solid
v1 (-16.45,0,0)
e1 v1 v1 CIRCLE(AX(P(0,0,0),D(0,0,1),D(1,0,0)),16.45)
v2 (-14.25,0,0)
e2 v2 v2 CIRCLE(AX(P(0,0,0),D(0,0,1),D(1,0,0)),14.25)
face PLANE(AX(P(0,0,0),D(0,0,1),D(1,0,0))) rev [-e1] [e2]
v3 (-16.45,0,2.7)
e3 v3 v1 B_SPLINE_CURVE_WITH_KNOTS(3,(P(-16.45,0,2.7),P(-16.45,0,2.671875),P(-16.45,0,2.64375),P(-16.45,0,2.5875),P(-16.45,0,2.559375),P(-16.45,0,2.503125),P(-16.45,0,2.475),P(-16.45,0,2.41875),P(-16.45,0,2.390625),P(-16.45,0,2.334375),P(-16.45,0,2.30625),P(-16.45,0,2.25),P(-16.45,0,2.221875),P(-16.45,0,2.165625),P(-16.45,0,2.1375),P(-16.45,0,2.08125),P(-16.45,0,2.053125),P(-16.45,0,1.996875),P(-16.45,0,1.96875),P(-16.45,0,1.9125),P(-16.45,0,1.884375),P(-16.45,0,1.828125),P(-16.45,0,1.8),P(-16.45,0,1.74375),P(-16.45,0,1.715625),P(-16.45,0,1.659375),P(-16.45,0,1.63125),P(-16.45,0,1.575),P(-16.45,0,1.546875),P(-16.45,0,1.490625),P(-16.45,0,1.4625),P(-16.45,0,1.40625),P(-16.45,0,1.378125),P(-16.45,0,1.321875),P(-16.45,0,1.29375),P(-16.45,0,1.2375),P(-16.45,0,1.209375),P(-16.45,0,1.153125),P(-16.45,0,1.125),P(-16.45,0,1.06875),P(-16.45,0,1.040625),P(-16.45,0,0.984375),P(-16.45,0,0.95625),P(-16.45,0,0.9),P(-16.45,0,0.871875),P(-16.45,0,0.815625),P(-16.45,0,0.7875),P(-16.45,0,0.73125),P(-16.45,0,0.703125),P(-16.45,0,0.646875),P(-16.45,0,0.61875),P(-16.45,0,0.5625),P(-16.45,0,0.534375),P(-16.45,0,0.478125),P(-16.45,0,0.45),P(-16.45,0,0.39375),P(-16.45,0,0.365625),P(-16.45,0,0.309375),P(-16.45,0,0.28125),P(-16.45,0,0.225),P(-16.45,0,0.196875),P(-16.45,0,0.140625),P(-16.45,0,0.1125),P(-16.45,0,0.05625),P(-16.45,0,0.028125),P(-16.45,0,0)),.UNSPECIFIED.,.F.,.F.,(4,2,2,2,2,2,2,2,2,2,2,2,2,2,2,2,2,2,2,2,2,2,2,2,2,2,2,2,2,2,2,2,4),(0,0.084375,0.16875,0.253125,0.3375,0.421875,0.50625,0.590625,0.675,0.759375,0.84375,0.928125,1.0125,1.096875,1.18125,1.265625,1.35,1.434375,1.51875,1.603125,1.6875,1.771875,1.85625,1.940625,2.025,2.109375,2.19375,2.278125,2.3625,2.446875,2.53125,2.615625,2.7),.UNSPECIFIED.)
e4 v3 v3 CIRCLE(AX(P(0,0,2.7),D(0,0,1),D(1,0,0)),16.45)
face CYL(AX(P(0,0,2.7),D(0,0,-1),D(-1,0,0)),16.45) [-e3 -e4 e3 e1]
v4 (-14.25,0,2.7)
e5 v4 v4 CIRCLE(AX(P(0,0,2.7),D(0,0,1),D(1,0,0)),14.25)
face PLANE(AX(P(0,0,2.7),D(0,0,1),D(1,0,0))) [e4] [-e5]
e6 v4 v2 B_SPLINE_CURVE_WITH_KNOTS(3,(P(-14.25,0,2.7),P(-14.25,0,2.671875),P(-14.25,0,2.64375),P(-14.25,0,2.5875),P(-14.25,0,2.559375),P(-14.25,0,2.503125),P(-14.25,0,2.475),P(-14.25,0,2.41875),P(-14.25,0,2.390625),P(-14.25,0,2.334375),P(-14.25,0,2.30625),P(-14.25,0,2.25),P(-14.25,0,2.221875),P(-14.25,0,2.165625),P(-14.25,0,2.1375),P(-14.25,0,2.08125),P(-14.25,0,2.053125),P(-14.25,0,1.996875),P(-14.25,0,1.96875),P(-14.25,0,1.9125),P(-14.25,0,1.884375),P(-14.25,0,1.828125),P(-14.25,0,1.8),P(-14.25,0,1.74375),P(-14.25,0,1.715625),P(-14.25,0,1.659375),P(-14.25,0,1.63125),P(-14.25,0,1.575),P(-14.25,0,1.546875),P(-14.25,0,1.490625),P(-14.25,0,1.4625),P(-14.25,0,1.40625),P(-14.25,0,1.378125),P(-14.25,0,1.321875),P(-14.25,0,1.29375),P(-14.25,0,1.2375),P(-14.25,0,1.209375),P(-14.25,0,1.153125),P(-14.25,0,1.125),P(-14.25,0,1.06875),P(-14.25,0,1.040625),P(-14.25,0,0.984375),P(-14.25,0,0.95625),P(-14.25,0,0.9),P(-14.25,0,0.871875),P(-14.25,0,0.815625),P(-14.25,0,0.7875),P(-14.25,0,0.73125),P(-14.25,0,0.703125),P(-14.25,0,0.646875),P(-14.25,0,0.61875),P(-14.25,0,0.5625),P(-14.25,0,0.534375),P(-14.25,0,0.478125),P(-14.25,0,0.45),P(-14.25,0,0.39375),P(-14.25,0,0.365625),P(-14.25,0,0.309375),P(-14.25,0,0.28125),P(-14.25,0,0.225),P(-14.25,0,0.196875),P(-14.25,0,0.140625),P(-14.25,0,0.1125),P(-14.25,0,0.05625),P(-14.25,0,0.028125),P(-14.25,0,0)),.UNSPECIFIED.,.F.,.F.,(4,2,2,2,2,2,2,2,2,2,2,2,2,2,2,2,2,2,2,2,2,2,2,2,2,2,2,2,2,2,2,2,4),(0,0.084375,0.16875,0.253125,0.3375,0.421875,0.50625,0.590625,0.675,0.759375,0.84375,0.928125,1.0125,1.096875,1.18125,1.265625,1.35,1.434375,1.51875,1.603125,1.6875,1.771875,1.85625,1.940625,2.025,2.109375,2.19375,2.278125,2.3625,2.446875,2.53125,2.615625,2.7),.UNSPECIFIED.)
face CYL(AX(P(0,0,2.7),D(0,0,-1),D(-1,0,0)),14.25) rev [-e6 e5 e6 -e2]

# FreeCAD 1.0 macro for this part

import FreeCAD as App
import Part
import Sketcher

V = App.Vector

doc = App.newDocument("Part")
body = doc.addObject("PartDesign::Body", "Body")

sketch1 = body.newObject("Sketcher::SketchObject", "Sketch")
sketch1.AttachmentSupport = (doc.getObject("XY_Plane"), [""])
sketch1.MapMode = "FlatFace"
sketch1.addGeometry(Part.Circle(V(0, 0, 0), V(0, 0, 1), 16.45), False)
sketch1.addGeometry(Part.Circle(V(0, 0, 0), V(0, 0, 1), 14.25), False)
sketch1.addConstraint(Sketcher.Constraint("Coincident", 0, 3, -1, 1))
sketch1.addConstraint(Sketcher.Constraint("Coincident", 1, 3, -1, 1))
sketch1.addConstraint(Sketcher.Constraint("Diameter", 0, 32.9))
sketch1.addConstraint(Sketcher.Constraint("Diameter", 1, 28.5))
pad1 = body.newObject("PartDesign::Pad", "Pad")
pad1.Profile = sketch1
pad1.Length = 2.7

doc.recompute()
